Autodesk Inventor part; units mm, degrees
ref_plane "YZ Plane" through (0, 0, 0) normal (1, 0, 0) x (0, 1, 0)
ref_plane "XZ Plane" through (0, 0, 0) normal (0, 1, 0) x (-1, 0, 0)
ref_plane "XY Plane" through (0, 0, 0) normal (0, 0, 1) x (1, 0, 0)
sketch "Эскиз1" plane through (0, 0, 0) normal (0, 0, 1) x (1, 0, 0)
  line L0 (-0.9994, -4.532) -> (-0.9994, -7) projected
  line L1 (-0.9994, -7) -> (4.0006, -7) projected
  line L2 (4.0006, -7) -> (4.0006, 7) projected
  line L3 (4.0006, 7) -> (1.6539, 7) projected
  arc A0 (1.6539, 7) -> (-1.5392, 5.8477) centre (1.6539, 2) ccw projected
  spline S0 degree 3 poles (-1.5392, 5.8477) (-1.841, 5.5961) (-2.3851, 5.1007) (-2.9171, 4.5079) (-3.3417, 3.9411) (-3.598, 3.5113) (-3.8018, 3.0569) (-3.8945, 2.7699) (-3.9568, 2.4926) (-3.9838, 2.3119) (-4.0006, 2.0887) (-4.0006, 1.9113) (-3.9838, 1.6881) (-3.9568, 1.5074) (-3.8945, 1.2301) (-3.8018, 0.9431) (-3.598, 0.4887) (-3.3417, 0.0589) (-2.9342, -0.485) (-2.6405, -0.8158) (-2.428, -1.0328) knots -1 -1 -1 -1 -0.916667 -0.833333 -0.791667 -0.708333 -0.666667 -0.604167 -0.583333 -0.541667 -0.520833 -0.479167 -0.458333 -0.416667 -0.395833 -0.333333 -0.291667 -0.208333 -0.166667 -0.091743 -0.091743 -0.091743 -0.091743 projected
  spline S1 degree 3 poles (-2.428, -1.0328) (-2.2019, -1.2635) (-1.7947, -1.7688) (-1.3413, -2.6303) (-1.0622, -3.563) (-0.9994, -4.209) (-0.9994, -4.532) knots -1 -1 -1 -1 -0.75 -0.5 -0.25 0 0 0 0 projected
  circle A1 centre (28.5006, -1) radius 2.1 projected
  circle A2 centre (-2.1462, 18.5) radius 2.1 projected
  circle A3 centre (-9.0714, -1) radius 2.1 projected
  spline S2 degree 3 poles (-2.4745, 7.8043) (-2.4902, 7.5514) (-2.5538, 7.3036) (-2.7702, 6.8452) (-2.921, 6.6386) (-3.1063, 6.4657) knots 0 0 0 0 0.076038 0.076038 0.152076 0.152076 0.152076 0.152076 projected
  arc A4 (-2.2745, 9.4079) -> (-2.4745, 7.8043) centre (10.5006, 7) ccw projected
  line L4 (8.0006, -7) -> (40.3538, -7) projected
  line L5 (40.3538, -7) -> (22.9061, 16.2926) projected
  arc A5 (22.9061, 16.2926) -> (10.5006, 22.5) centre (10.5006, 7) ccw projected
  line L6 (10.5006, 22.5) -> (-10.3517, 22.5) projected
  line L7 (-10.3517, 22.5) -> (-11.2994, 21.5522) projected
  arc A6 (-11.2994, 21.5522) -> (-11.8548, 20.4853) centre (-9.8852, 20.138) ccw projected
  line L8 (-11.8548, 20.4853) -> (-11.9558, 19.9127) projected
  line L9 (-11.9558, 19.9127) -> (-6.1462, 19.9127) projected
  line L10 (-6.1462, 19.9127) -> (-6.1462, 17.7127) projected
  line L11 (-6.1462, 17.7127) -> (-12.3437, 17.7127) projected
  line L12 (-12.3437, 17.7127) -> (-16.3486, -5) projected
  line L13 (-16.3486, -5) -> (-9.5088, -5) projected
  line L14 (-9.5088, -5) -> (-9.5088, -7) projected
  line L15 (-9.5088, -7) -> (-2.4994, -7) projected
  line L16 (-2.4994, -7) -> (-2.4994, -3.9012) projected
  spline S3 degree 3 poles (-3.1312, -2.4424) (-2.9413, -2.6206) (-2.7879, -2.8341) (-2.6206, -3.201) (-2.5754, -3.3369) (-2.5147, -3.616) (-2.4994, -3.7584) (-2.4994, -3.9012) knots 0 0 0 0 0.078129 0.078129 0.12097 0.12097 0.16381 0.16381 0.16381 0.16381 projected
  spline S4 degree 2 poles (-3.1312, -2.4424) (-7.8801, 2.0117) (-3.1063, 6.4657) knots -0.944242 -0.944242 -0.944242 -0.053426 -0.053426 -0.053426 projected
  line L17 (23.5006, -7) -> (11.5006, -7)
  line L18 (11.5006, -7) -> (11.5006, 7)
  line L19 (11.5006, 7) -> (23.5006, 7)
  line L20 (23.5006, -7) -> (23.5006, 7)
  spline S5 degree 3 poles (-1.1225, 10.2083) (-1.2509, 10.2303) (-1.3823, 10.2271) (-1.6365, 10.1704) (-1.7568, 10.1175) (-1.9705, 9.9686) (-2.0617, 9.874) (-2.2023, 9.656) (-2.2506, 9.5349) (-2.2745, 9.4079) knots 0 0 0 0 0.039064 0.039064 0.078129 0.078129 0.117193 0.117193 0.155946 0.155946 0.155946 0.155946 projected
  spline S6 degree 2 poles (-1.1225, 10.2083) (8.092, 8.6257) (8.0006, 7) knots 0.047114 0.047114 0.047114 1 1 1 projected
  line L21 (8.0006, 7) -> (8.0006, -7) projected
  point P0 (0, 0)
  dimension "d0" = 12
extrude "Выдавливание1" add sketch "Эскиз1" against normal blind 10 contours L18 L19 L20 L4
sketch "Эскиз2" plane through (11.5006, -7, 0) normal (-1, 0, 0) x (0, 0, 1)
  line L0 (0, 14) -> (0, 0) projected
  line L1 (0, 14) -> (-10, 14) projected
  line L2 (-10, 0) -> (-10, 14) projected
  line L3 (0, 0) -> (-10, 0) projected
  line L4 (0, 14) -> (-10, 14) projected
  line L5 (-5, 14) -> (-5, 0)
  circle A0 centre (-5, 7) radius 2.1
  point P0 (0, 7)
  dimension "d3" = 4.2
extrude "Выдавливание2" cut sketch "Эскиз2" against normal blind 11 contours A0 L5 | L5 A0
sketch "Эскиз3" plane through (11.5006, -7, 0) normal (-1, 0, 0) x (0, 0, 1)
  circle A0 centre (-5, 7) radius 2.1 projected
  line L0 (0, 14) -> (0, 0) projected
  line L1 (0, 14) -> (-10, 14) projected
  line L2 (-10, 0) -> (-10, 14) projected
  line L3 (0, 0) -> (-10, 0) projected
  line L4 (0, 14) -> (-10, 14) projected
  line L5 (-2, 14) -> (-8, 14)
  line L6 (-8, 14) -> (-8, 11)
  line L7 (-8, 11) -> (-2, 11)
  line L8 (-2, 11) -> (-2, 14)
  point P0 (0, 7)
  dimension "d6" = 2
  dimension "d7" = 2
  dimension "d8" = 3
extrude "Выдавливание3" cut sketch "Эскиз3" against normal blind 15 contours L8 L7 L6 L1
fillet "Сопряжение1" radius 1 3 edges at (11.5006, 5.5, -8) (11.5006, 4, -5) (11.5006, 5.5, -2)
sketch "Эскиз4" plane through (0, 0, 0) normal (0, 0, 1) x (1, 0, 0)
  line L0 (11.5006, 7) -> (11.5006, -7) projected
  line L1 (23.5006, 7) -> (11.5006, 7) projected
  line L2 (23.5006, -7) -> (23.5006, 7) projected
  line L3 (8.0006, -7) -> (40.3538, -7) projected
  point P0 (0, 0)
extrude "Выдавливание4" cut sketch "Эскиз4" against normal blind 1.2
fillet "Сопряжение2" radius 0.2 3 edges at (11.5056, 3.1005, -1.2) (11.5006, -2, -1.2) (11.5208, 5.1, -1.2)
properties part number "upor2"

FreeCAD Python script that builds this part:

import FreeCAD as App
import Part
import Sketcher
from FreeCAD import Vector
Q = App.Units.Quantity


def edges_at(feature, points):
    """Names of the edges that pass closest to the given points."""
    edges = feature.Shape.Edges
    near = lambda p: min(range(len(edges)), key=lambda i: edges[i].distToShape(Part.Vertex(*p))[0])
    return sorted({f"Edge{near(p) + 1}" for p in points})

doc = App.newDocument("Part")
body = doc.addObject("PartDesign::Body", "Body")

# Sketch on XY plane
sketch1 = doc.addObject("Sketcher::SketchObject", "Sketch")
body.addObject(sketch1)
sketch1.AttachmentSupport = (doc.XY_Plane, [""])
sketch1.MapMode = "FlatFace"
sketch1.addGeometry([
    Part.LineSegment(Vector(12, 7, 0), Vector(12, -7, 0)),
    Part.LineSegment(Vector(12, -7, 0), Vector(24, -7, 0)),
    Part.LineSegment(Vector(24, -7, 0), Vector(24, 7, 0)),
    Part.LineSegment(Vector(24, 7, 0), Vector(12, 7, 0)),
], False)
sketch1.addConstraint([
    Sketcher.Constraint("Coincident", 0, 2, 1, 1),
    Sketcher.Constraint("Coincident", 1, 2, 2, 1),
    Sketcher.Constraint("Coincident", 2, 2, 3, 1),
    Sketcher.Constraint("Coincident", 3, 2, 0, 1),
    Sketcher.Constraint("Vertical", 0),
    Sketcher.Constraint("Horizontal", 1),
    Sketcher.Constraint("Vertical", 2),
    Sketcher.Constraint("Horizontal", 3),
    Sketcher.Constraint("DistanceX", 1, 1, 1, 2, Q("12 mm")),
    Sketcher.Constraint("DistanceY", 0, 2, 0, 1, Q("14 mm")),
    Sketcher.Constraint("DistanceY", 0, 2, -1, 1, Q("7 mm")),
    Sketcher.Constraint("DistanceX", -1, 1, 0, 2, Q("11.5006 mm")),
])
pad1 = doc.addObject("PartDesign::Pad", "Pad")
body.addObject(pad1)
pad1.Profile = sketch1
pad1.Length = 10
pad1.Reversed = True

# Sketch on YZ plane
sketch2 = doc.addObject("Sketcher::SketchObject", "Sketch001")
body.addObject(sketch2)
sketch2.AttachmentSupport = (doc.YZ_Plane, [""])
sketch2.MapMode = "FlatFace"
sketch2.AttachmentOffset = App.Placement(Vector(0, 0, 11.5006), App.Rotation())
sketch2.addGeometry(Part.Circle(Vector(0, -5, 0), Vector(0, 0, 1), 2.1), False)
sketch2.addConstraint([
    Sketcher.Constraint("PointOnObject", 0, 3, -2),
    Sketcher.Constraint("Diameter", 0, Q("4.2 mm")),
    Sketcher.Constraint("DistanceY", 0, 3, -1, 1, Q("5 mm")),
])
pocket1 = doc.addObject("PartDesign::Pocket", "Pocket")
body.addObject(pocket1)
pocket1.Profile = sketch2
pocket1.Length = 11
pocket1.Reversed = True

# Sketch on YZ plane
sketch3 = doc.addObject("Sketcher::SketchObject", "Sketch002")
body.addObject(sketch3)
sketch3.AttachmentSupport = (doc.YZ_Plane, [""])
sketch3.MapMode = "FlatFace"
sketch3.AttachmentOffset = App.Placement(Vector(0, 0, 11.5006), App.Rotation())
sketch3.addGeometry([
    Part.LineSegment(Vector(4, -2, 0), Vector(7, -2, 0)),
    Part.LineSegment(Vector(7, -2, 0), Vector(7, -8, 0)),
    Part.LineSegment(Vector(7, -8, 0), Vector(4, -8, 0)),
    Part.LineSegment(Vector(4, -8, 0), Vector(4, -2, 0)),
], False)
sketch3.addConstraint([
    Sketcher.Constraint("Coincident", 0, 2, 1, 1),
    Sketcher.Constraint("Coincident", 1, 2, 2, 1),
    Sketcher.Constraint("Coincident", 2, 2, 3, 1),
    Sketcher.Constraint("Coincident", 3, 2, 0, 1),
    Sketcher.Constraint("Horizontal", 0),
    Sketcher.Constraint("Vertical", 1),
    Sketcher.Constraint("Horizontal", 2),
    Sketcher.Constraint("Vertical", 3),
    Sketcher.Constraint("DistanceX", 0, 1, 0, 2, Q("3 mm")),
    Sketcher.Constraint("DistanceY", 0, 2, -1, 1, Q("2 mm")),
    Sketcher.Constraint("DistanceY", 1, 2, 1, 1, Q("6 mm")),
    Sketcher.Constraint("DistanceX", -1, 1, 0, 2, Q("7 mm")),
])
pocket2 = doc.addObject("PartDesign::Pocket", "Pocket001")
body.addObject(pocket2)
pocket2.Profile = sketch3
pocket2.Length = 15
pocket2.Reversed = True
doc.recompute()

fillet = doc.addObject("PartDesign::Fillet", "Fillet")
body.addObject(fillet)
fillet.Base = (pocket2, edges_at(pocket2, [(11.501, 5.5, -8), (11.501, 4, -5), (11.501, 5.5, -2)]))
fillet.Radius = 1

# Sketch on XY plane
sketch4 = doc.addObject("Sketcher::SketchObject", "Sketch003")
body.addObject(sketch4)
sketch4.AttachmentSupport = (doc.XY_Plane, [""])
sketch4.MapMode = "FlatFace"
sketch4.addGeometry([
    Part.LineSegment(Vector(24, 7, 0), Vector(12, 7, 0)),
    Part.LineSegment(Vector(12, 7, 0), Vector(12, -7, 0)),
    Part.LineSegment(Vector(12, -7, 0), Vector(24, -7, 0)),
    Part.LineSegment(Vector(24, -7, 0), Vector(24, 7, 0)),
], False)
sketch4.addConstraint([
    Sketcher.Constraint("Coincident", 0, 2, 1, 1),
    Sketcher.Constraint("Coincident", 1, 2, 2, 1),
    Sketcher.Constraint("Coincident", 2, 2, 3, 1),
    Sketcher.Constraint("Coincident", 3, 2, 0, 1),
    Sketcher.Constraint("Horizontal", 0),
    Sketcher.Constraint("Vertical", 1),
    Sketcher.Constraint("Horizontal", 2),
    Sketcher.Constraint("Vertical", 3),
    Sketcher.Constraint("DistanceX", 0, 2, 0, 1, Q("12 mm")),
    Sketcher.Constraint("DistanceY", 1, 2, 1, 1, Q("14 mm")),
    Sketcher.Constraint("DistanceY", -1, 1, 0, 2, Q("7 mm")),
    Sketcher.Constraint("DistanceX", -1, 1, 0, 2, Q("11.5006 mm")),
])
pocket3 = doc.addObject("PartDesign::Pocket", "Pocket002")
body.addObject(pocket3)
pocket3.Profile = sketch4
pocket3.Length = 1.2
doc.recompute()

fillet2 = doc.addObject("PartDesign::Fillet", "Fillet001")
body.addObject(fillet2)
fillet2.Base = (pocket3, edges_at(pocket3, [(11.506, 3.1, -1.2), (11.501, -2, -1.2), (11.521, 5.1, -1.2)]))
fillet2.Radius = 0.2

doc.recompute()
